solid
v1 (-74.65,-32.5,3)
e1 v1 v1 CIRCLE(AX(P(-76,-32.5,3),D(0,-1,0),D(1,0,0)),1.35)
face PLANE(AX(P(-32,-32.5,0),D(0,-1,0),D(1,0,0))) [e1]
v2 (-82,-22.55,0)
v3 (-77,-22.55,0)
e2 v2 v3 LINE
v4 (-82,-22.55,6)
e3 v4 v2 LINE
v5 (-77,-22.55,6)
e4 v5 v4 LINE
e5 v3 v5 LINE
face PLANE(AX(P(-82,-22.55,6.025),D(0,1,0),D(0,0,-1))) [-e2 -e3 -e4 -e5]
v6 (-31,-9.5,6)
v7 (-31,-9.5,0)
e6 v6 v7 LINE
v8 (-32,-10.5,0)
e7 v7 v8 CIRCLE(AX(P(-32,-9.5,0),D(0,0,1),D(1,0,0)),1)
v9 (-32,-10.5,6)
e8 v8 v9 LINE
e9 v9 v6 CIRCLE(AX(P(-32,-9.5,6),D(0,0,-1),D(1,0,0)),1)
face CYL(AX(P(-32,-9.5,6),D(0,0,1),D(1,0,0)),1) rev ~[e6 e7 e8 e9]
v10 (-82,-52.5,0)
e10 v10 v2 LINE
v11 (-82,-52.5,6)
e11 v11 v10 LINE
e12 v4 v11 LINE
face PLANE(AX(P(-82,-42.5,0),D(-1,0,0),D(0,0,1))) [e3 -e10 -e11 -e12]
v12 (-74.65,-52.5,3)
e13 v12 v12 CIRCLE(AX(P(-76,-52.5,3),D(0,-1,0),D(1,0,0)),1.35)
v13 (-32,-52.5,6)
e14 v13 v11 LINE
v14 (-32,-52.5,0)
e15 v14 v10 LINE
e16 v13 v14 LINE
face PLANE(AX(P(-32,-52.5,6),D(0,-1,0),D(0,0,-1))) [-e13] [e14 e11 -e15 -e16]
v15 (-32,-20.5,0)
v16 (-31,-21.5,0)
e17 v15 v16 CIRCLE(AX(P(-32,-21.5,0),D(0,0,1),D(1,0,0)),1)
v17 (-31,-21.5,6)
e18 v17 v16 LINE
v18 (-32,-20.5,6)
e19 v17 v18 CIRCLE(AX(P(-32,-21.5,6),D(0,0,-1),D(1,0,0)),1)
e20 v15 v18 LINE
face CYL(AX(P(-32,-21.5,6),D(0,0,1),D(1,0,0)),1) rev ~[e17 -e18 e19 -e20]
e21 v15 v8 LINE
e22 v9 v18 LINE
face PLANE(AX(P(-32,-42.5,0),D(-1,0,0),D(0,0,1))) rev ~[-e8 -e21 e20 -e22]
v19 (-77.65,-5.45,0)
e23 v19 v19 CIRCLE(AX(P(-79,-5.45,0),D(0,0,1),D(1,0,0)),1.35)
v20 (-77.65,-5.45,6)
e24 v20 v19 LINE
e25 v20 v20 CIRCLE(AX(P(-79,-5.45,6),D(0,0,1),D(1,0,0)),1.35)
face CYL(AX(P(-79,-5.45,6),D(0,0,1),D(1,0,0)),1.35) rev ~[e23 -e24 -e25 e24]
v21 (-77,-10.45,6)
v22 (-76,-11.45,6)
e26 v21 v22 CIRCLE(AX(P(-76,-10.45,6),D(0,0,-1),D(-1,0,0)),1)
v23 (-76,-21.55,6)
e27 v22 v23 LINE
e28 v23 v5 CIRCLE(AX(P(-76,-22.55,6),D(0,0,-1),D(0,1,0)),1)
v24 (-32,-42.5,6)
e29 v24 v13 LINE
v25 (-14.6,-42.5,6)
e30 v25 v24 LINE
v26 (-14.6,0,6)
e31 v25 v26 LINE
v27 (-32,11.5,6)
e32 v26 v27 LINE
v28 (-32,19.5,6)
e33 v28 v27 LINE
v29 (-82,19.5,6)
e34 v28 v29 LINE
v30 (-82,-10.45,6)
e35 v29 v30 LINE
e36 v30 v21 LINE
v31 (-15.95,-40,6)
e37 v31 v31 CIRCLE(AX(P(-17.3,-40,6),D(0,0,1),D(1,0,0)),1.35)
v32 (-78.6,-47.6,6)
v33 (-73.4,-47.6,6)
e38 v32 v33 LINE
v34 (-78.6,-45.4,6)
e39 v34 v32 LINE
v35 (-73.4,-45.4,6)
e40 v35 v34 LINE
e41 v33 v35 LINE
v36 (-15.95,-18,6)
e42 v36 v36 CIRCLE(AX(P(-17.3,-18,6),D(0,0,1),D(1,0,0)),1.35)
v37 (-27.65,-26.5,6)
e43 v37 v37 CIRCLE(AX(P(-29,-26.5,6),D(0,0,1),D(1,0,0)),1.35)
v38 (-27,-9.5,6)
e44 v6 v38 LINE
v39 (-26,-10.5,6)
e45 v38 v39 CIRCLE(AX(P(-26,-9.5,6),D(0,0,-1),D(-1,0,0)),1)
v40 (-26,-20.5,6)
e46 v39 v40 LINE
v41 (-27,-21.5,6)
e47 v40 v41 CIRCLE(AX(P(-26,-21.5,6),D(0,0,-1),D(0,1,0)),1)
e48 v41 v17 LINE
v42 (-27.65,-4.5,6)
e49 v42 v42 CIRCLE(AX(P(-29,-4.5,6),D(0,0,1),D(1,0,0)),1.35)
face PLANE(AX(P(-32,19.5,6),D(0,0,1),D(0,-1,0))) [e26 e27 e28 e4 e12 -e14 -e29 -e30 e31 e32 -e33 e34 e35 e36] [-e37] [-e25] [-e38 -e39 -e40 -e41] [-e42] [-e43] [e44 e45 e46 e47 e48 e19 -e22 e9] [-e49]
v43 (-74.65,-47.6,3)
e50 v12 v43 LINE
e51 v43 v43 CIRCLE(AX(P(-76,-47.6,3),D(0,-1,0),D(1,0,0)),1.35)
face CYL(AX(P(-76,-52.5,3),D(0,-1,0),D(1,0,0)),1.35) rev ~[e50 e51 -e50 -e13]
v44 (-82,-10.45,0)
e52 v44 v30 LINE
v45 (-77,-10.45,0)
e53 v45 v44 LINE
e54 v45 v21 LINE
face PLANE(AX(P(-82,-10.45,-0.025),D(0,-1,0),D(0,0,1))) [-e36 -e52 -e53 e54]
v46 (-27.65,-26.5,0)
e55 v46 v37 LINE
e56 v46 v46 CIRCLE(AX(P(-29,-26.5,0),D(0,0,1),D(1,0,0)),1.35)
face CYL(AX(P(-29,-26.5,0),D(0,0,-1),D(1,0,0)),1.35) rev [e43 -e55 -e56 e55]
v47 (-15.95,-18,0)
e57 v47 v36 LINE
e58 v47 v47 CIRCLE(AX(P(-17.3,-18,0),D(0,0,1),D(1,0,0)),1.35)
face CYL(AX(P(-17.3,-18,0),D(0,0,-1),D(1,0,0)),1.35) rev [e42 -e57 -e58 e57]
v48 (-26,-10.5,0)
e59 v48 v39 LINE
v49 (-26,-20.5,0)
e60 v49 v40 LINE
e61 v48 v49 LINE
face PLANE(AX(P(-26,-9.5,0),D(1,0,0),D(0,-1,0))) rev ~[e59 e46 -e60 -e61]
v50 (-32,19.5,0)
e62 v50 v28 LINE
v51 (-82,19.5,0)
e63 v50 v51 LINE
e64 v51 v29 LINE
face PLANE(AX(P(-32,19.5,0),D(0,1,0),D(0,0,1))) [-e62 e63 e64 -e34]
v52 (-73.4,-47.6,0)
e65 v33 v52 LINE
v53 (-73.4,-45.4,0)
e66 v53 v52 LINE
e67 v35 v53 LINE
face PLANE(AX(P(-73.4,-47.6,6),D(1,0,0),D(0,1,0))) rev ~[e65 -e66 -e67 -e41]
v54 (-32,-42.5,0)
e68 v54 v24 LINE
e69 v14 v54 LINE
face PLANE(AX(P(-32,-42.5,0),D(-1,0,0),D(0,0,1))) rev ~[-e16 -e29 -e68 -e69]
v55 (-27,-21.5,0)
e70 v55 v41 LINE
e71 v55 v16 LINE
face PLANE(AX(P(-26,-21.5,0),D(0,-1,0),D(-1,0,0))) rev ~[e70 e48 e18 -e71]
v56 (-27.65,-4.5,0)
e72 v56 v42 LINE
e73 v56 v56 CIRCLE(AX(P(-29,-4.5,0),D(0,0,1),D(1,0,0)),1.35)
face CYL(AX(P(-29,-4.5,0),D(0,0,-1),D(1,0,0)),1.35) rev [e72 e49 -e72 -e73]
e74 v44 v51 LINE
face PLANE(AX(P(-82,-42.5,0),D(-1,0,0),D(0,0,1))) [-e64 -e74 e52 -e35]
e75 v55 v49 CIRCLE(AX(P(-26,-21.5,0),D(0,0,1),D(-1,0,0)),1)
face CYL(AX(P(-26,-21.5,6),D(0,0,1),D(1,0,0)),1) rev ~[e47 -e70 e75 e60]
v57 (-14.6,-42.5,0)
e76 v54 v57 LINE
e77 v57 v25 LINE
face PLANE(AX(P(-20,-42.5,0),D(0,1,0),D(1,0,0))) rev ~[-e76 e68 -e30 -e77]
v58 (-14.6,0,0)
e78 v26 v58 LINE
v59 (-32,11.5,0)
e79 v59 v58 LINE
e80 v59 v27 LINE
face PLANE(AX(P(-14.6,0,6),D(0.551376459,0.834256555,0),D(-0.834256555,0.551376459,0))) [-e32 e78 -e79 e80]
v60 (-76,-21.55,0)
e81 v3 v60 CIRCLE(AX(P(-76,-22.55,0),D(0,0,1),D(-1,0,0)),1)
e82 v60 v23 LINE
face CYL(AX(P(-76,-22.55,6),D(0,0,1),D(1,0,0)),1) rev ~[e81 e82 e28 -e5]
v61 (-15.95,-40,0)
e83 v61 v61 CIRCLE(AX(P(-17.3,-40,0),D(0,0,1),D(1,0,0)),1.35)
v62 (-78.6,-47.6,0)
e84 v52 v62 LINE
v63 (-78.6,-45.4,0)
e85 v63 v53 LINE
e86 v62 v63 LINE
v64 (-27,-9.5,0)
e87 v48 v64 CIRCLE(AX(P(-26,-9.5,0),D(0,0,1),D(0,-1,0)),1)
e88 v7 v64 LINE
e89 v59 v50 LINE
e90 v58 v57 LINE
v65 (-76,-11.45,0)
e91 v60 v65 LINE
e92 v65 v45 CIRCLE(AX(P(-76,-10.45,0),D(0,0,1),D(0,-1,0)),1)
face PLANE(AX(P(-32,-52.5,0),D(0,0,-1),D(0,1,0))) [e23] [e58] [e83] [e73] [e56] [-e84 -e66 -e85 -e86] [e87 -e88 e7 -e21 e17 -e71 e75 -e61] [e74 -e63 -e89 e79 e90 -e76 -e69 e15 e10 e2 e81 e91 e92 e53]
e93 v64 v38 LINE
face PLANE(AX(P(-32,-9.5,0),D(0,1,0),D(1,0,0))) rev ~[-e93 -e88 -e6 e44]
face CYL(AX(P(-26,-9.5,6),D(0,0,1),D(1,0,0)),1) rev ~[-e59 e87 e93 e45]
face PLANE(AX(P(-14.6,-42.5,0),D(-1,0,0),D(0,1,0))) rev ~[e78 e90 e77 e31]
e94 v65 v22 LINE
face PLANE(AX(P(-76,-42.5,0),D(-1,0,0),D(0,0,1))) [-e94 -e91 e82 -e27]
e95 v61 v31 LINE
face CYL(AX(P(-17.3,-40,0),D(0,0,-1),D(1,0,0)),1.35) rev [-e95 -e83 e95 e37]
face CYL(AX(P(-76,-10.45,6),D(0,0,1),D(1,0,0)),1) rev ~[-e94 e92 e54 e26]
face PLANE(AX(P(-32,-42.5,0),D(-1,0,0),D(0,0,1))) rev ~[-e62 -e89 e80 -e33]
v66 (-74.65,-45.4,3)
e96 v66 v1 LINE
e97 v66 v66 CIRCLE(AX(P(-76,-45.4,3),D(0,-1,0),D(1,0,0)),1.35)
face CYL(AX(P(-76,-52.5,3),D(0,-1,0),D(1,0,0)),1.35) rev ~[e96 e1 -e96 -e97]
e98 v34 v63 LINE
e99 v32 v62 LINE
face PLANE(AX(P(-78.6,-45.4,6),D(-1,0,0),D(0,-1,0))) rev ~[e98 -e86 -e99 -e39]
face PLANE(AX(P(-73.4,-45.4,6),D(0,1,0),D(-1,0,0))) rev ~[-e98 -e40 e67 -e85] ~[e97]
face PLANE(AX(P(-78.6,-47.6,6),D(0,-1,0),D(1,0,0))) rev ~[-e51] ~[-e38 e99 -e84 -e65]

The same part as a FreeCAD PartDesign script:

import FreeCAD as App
import Part
import Sketcher

V = App.Vector

doc = App.newDocument("Part")
body = doc.addObject("PartDesign::Body", "Body")

# Sketch on XY plane
sketch1 = body.newObject("Sketcher::SketchObject", "Sketch")
sketch1.AttachmentSupport = (doc.getObject("XY_Plane"), [""])
sketch1.MapMode = "FlatFace"
sketch1.addGeometry([
    Part.LineSegment(V(-14.6, -42.5, 0), V(-14.6, 11.5, 0)),  # 0
    Part.LineSegment(V(-14.6, 11.5, 0), V(-32, 11.5, 0)),  # 1
    Part.LineSegment(V(-32, 11.5, 0), V(-32, -9.5, 0)),  # 2
    Part.LineSegment(V(-32, -9.5, 0), V(-26, -9.5, 0)),  # 3
    Part.LineSegment(V(-26, -9.5, 0), V(-26, -21.5, 0)),  # 4
    Part.LineSegment(V(-26, -21.5, 0), V(-32, -21.5, 0)),  # 5
    Part.LineSegment(V(-32, -21.5, 0), V(-32, -42.5, 0)),  # 6
    Part.LineSegment(V(-32, -42.5, 0), V(-14.6, -42.5, 0)),  # 7
    Part.Circle(V(-29, -26.5, 0), V(0, 0, 1), 1.35),  # 8
    Part.Circle(V(-29, -4.5, 0), V(0, 0, 1), 1.35),  # 9
    Part.Circle(V(-17.3, -40, 0), V(0, 0, 1), 1.35),  # 10
    Part.Circle(V(-17.3, -18, 0), V(0, 0, 1), 1.35),  # 11
    Part.Circle(V(-17.3, 4, 0), V(0, 0, 1), 1.35),  # 12
], False)
sketch1.addConstraint([
    Sketcher.Constraint("Coincident", 0, 2, 1, 1),
    Sketcher.Constraint("Coincident", 1, 2, 2, 1),
    Sketcher.Constraint("Coincident", 2, 2, 3, 1),
    Sketcher.Constraint("Coincident", 3, 2, 4, 1),
    Sketcher.Constraint("Coincident", 4, 2, 5, 1),
    Sketcher.Constraint("Coincident", 5, 2, 6, 1),
    Sketcher.Constraint("Coincident", 6, 2, 7, 1),
    Sketcher.Constraint("Coincident", 7, 2, 0, 1),
    Sketcher.Constraint("Vertical", 0),
    Sketcher.Constraint("Horizontal", 1),
    Sketcher.Constraint("Vertical", 2),
    Sketcher.Constraint("Horizontal", 3),
    Sketcher.Constraint("Vertical", 4),
    Sketcher.Constraint("Horizontal", 5),
    Sketcher.Constraint("Vertical", 6),
    Sketcher.Constraint("Horizontal", 7),
    Sketcher.Constraint("Equal", 8, 9),
    Sketcher.Constraint("Equal", 9, 10),
    Sketcher.Constraint("Equal", 10, 11),
    Sketcher.Constraint("Equal", 11, 12),
    Sketcher.Constraint("Vertical", 8, 3, 9, 3),
    Sketcher.Constraint("Vertical", 10, 3, 11, 3),
    Sketcher.Constraint("Vertical", 11, 3, 12, 3),
    Sketcher.Constraint("Vertical", 2, 2, 5, 2),
    Sketcher.Constraint("Equal", 2, 6),
    Sketcher.Constraint("Diameter", 8, 2.7),
    Sketcher.Constraint("DistanceY", 4, 2, 4, 1, 12.0),
    Sketcher.Constraint("DistanceX", 12, 3, 0, 2, 2.7),
    Sketcher.Constraint("DistanceX", 3, 1, 3, 2, 6.0),
    Sketcher.Constraint("DistanceY", 0, 1, 0, 2, 54.0),
    Sketcher.Constraint("DistanceX", 1, 2, 1, 1, 17.4),
    Sketcher.Constraint("DistanceX", 8, 3, -1, 1, 29.0),
    Sketcher.Constraint("DistanceY", 10, 3, -1, 1, 40.0),
    Sketcher.Constraint("DistanceY", 11, 3, -1, 1, 18.0),
    Sketcher.Constraint("DistanceY", -1, 1, 12, 3, 4.0),
    Sketcher.Constraint("DistanceX", 1, 2, -1, 1, 32.0),
    Sketcher.Constraint("DistanceY", 8, 3, 9, 3, 22.0),
    Sketcher.Constraint("DistanceY", 9, 3, 0, 2, 16.0),
    Sketcher.Constraint("DistanceY", 8, 3, -1, 1, 26.5),
])
pad1 = body.newObject("PartDesign::Pad", "Pad")
pad1.Profile = sketch1
pad1.Length = 6

# Sketch on YZ plane
sketch2 = body.newObject("Sketcher::SketchObject", "Sketch001")
sketch2.AttachmentSupport = (doc.getObject("YZ_Plane"), [""])
sketch2.MapMode = "FlatFace"
sketch2.AttachmentOffset = App.Placement(V(0, 0, -32), App.Rotation())
sketch2.addGeometry([
    Part.LineSegment(V(19.5, 6, 0), V(19.5, 0, 0)),
    Part.LineSegment(V(19.5, 0, 0), V(-52.5, 0, 0)),
    Part.LineSegment(V(-52.5, 0, 0), V(-52.5, 6, 0)),
    Part.LineSegment(V(-52.5, 6, 0), V(19.5, 6, 0)),
], False)
sketch2.addConstraint([
    Sketcher.Constraint("Coincident", 0, 2, 1, 1),
    Sketcher.Constraint("Coincident", 1, 2, 2, 1),
    Sketcher.Constraint("Coincident", 2, 2, 3, 1),
    Sketcher.Constraint("Coincident", 3, 2, 0, 1),
    Sketcher.Constraint("Vertical", 0),
    Sketcher.Constraint("Horizontal", 1),
    Sketcher.Constraint("Vertical", 2),
    Sketcher.Constraint("Horizontal", 3),
    Sketcher.Constraint("PointOnObject", 0, 2, -1),
    Sketcher.Constraint("DistanceX", 1, 2, 1, 1, 72.0),
    Sketcher.Constraint("DistanceY", 0, 2, 0, 1, 6.0),
    Sketcher.Constraint("DistanceX", -1, 1, 0, 2, 19.5),
])
pad2 = body.newObject("PartDesign::Pad", "Pad001")
pad2.Profile = sketch2
pad2.Length = 50
pad2.Reversed = True

# Sketch on XY plane
sketch3 = body.newObject("Sketcher::SketchObject", "Sketch002")
sketch3.AttachmentSupport = (doc.getObject("XY_Plane"), [""])
sketch3.MapMode = "FlatFace"
sketch3.AttachmentOffset = App.Placement(V(0, 0, 6), App.Rotation())
sketch3.addGeometry([
    Part.LineSegment(V(-32, 11.5, 0), V(-14.6, 0, 0)),
    Part.LineSegment(V(-14.6, 0, 0), V(-14.6, 11.5, 0)),
    Part.LineSegment(V(-14.6, 11.5, 0), V(-32, 11.5, 0)),
    Part.Circle(V(-17.3, 4, 0), V(0, 0, 1), 1.35),
], False)
sketch3.addConstraint([
    Sketcher.Constraint("Coincident", 0, 2, 1, 1),
    Sketcher.Constraint("Coincident", 1, 2, 2, 1),
    Sketcher.Constraint("Coincident", 2, 2, 0, 1),
    Sketcher.Constraint("Vertical", 1),
    Sketcher.Constraint("Horizontal", 2),
    Sketcher.Constraint("PointOnObject", 0, 2, -1),
    Sketcher.Constraint("Diameter", 3, 2.7),
    Sketcher.Constraint("DistanceX", 2, 2, 2, 1, 17.4),
    Sketcher.Constraint("DistanceY", 1, 1, 1, 2, 11.5),
    Sketcher.Constraint("DistanceY", -1, 1, 3, 3, 4.0),
    Sketcher.Constraint("DistanceX", 2, 2, -1, 1, 32.0),
    Sketcher.Constraint("DistanceX", 3, 3, -1, 1, 17.3),
])
pocket1 = body.newObject("PartDesign::Pocket", "Pocket")
pocket1.Profile = sketch3
pocket1.Length = 50

# Sketch on YZ plane
sketch4 = body.newObject("Sketcher::SketchObject", "Sketch003")
sketch4.AttachmentSupport = (doc.getObject("YZ_Plane"), [""])
sketch4.MapMode = "FlatFace"
sketch4.AttachmentOffset = App.Placement(V(0, 0, -82), App.Rotation())
sketch4.addGeometry([
    Part.LineSegment(V(-22.55, -0.025, 0), V(-22.55, 6.025, 0)),
    Part.LineSegment(V(-22.55, 6.025, 0), V(-10.45, 6.025, 0)),
    Part.LineSegment(V(-10.45, 6.025, 0), V(-10.45, -0.025, 0)),
    Part.LineSegment(V(-10.45, -0.025, 0), V(-22.55, -0.025, 0)),
], False)
sketch4.addConstraint([
    Sketcher.Constraint("Coincident", 0, 2, 1, 1),
    Sketcher.Constraint("Coincident", 1, 2, 2, 1),
    Sketcher.Constraint("Coincident", 2, 2, 3, 1),
    Sketcher.Constraint("Coincident", 3, 2, 0, 1),
    Sketcher.Constraint("Vertical", 0),
    Sketcher.Constraint("Horizontal", 1),
    Sketcher.Constraint("Vertical", 2),
    Sketcher.Constraint("Horizontal", 3),
    Sketcher.Constraint("DistanceX", 1, 1, 1, 2, 12.1),
    Sketcher.Constraint("DistanceY", 0, 1, 0, 2, 6.05),
    Sketcher.Constraint("DistanceX", 0, 2, -1, 1, 22.55),
    Sketcher.Constraint("DistanceY", -1, 1, 0, 2, 6.025),
])
pocket2 = body.newObject("PartDesign::Pocket", "Pocket001")
pocket2.Profile = sketch4
pocket2.Length = 6
pocket2.Reversed = True

# Sketch on XY plane
sketch5 = body.newObject("Sketcher::SketchObject", "Sketch004")
sketch5.AttachmentSupport = (doc.getObject("XY_Plane"), [""])
sketch5.MapMode = "FlatFace"
sketch5.AttachmentOffset = App.Placement(V(0, 0, 6), App.Rotation())
sketch5.addGeometry(Part.Circle(V(-79, -5.45, 0), V(0, 0, 1), 1.35), False)
sketch5.addConstraint([
    Sketcher.Constraint("Diameter", 0, 2.7),
    Sketcher.Constraint("DistanceX", 0, 3, -1, 1, 79.0),
    Sketcher.Constraint("DistanceY", 0, 3, -1, 1, 5.45),
])
pocket3 = body.newObject("PartDesign::Pocket", "Pocket002")
pocket3.Profile = sketch5
pocket3.Length = 6

# Sketch on XZ plane
sketch6 = body.newObject("Sketcher::SketchObject", "Sketch005")
sketch6.AttachmentSupport = (doc.getObject("XZ_Plane"), [""])
sketch6.MapMode = "FlatFace"
sketch6.AttachmentOffset = App.Placement(V(0, 0, 52.5), App.Rotation())
sketch6.addGeometry(Part.Circle(V(-76, 3, 0), V(0, 0, 1), 1.35), False)
sketch6.addConstraint([
    Sketcher.Constraint("Diameter", 0, 2.7),
    Sketcher.Constraint("DistanceX", 0, 3, -1, 1, 76.0),
    Sketcher.Constraint("DistanceY", -1, 1, 0, 3, 3.0),
])
pocket4 = body.newObject("PartDesign::Pocket", "Pocket003")
pocket4.Profile = sketch6
pocket4.Length = 20

# Sketch on XY plane
sketch7 = body.newObject("Sketcher::SketchObject", "Sketch006")
sketch7.AttachmentSupport = (doc.getObject("XY_Plane"), [""])
sketch7.MapMode = "FlatFace"
sketch7.AttachmentOffset = App.Placement(V(0, 0, 6), App.Rotation())
sketch7.addGeometry([
    Part.LineSegment(V(-73.4, -47.6, 0), V(-73.4, -45.4, 0)),
    Part.LineSegment(V(-73.4, -45.4, 0), V(-78.6, -45.4, 0)),
    Part.LineSegment(V(-78.6, -45.4, 0), V(-78.6, -47.6, 0)),
    Part.LineSegment(V(-78.6, -47.6, 0), V(-73.4, -47.6, 0)),
], False)
sketch7.addConstraint([
    Sketcher.Constraint("Coincident", 0, 2, 1, 1),
    Sketcher.Constraint("Coincident", 1, 2, 2, 1),
    Sketcher.Constraint("Coincident", 2, 2, 3, 1),
    Sketcher.Constraint("Coincident", 3, 2, 0, 1),
    Sketcher.Constraint("Vertical", 0),
    Sketcher.Constraint("Horizontal", 1),
    Sketcher.Constraint("Vertical", 2),
    Sketcher.Constraint("Horizontal", 3),
    Sketcher.Constraint("DistanceX", 1, 2, 1, 1, 5.2),
    Sketcher.Constraint("DistanceY", 0, 1, 0, 2, 2.2),
    Sketcher.Constraint("DistanceX", 0, 2, -1, 1, 73.4),
    Sketcher.Constraint("DistanceY", 0, 2, -1, 1, 45.4),
])
pocket5 = body.newObject("PartDesign::Pocket", "Pocket004")
pocket5.Profile = sketch7
pocket5.Length = 20

# Sketch on XY plane
sketch8 = body.newObject("Sketcher::SketchObject", "Sketch007")
sketch8.AttachmentSupport = (doc.getObject("XY_Plane"), [""])
sketch8.MapMode = "FlatFace"
sketch8.AttachmentOffset = App.Placement(V(0, 0, 6), App.Rotation())
sketch8.addGeometry([
    Part.Circle(V(-76, -10.45, 0), V(0, 0, 1), 1),  # 0
    Part.Circle(V(-76, -22.55, 0), V(0, 0, 1), 1),  # 1
    Part.Circle(V(-32, -21.5, 0), V(0, 0, 1), 1),  # 2
    Part.Circle(V(-32, -9.5, 0), V(0, 0, 1), 1),  # 3
    Part.Circle(V(-26, -21.5, 0), V(0, 0, 1), 1),  # 4
    Part.Circle(V(-26, -9.5, 0), V(0, 0, 1), 1),  # 5
], False)
sketch8.addConstraint([
    Sketcher.Constraint("Equal", 0, 1),
    Sketcher.Constraint("Equal", 1, 2),
    Sketcher.Constraint("Equal", 2, 3),
    Sketcher.Constraint("Equal", 3, 4),
    Sketcher.Constraint("Equal", 4, 5),
    Sketcher.Constraint("Horizontal", 2, 3, 4, 3),
    Sketcher.Constraint("Horizontal", 3, 3, 5, 3),
    Sketcher.Constraint("Vertical", 0, 3, 1, 3),
    Sketcher.Constraint("Vertical", 2, 3, 3, 3),
    Sketcher.Constraint("Vertical", 4, 3, 5, 3),
    Sketcher.Constraint("Diameter", 0, 2.0),
    Sketcher.Constraint("DistanceX", 0, 3, -1, 1, 76.0),
    Sketcher.Constraint("DistanceX", 2, 3, -1, 1, 32.0),
    Sketcher.Constraint("DistanceX", 4, 3, -1, 1, 26.0),
    Sketcher.Constraint("DistanceY", 2, 3, 3, 3, 12.0),
    Sketcher.Constraint("DistanceY", 2, 3, -1, 1, 21.5),
    Sketcher.Constraint("DistanceY", 1, 3, 0, 3, 12.1),
    Sketcher.Constraint("DistanceY", 0, 3, -1, 1, 10.45),
])
pocket6 = body.newObject("PartDesign::Pocket", "Pocket005")
pocket6.Profile = sketch8
pocket6.Length = 10

doc.recompute()
